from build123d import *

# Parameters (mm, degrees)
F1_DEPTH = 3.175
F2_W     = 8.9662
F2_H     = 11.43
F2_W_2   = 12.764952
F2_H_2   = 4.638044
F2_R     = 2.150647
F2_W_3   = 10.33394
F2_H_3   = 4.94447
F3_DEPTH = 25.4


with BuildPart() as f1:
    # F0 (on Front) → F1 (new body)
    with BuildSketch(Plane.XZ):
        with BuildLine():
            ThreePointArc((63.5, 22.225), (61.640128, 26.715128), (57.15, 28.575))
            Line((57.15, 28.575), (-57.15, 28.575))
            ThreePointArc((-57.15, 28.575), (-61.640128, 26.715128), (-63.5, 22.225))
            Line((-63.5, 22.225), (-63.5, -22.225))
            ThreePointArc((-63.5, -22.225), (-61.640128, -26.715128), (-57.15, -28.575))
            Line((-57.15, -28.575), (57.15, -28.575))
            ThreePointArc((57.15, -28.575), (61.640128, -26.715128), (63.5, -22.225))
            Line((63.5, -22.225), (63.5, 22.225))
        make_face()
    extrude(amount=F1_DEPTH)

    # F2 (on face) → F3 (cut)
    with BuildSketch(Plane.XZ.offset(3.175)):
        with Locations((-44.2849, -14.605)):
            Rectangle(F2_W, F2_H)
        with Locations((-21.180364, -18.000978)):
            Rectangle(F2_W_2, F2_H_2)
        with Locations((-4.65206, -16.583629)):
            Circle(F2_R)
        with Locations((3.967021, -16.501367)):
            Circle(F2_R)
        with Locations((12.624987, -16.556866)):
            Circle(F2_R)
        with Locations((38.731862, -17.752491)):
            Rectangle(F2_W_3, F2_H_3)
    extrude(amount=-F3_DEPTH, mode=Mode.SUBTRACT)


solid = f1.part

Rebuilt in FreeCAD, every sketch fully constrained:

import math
import FreeCAD as App
import Part
import Sketcher

V = App.Vector
Q = App.Units.Quantity


def add_polygon(sketch, points):
    """Adds a closed chain of lines whose ends are joined by coincident constraints."""
    first, n = sketch.GeometryCount, len(points)
    for a, b in zip(points, points[1:] + points[:1]):
        sketch.addGeometry(Part.LineSegment(App.Vector(*a, 0), App.Vector(*b, 0)), False)
    for i in range(n):
        sketch.addConstraint(Sketcher.Constraint("Coincident", first + i, 2, first + (i + 1) % n, 1))

doc = App.newDocument("Part")
body = doc.addObject("PartDesign::Body", "Body")

sketch1 = doc.addObject("Sketcher::SketchObject", "Sketch")
body.addObject(sketch1)
sketch1.AttachmentSupport = (doc.XZ_Plane, [""])
sketch1.MapMode = "FlatFace"
sketch1.addGeometry([
    Part.ArcOfCircle(Part.Circle(V(57, 22, 0), V(0, 0, 1), 6), math.radians(0), math.radians(90)),
    Part.LineSegment(V(57, 29, 0), V(-57, 29, 0)),
    Part.ArcOfCircle(Part.Circle(V(-57, 22, 0), V(0, 0, 1), 6), math.radians(90), math.radians(180)),
    Part.LineSegment(V(-64, 22, 0), V(-64, -22, 0)),
    Part.ArcOfCircle(Part.Circle(V(-57, -22, 0), V(0, 0, 1), 6), math.radians(-180), math.radians(-90)),
    Part.LineSegment(V(-57, -29, 0), V(57, -29, 0)),
    Part.ArcOfCircle(Part.Circle(V(57, -22, 0), V(0, 0, 1), 6), math.radians(-90), math.radians(0)),
    Part.LineSegment(V(64, -22, 0), V(64, 22, 0)),
], False)
sketch1.addConstraint([
    Sketcher.Constraint("Tangent", 0, 2, 1, 1),
    Sketcher.Constraint("Tangent", 1, 2, 2, 1),
    Sketcher.Constraint("Tangent", 2, 2, 3, 1),
    Sketcher.Constraint("Tangent", 3, 2, 4, 1),
    Sketcher.Constraint("Tangent", 4, 2, 5, 1),
    Sketcher.Constraint("Tangent", 5, 2, 6, 1),
    Sketcher.Constraint("Tangent", 6, 2, 7, 1),
    Sketcher.Constraint("Tangent", 7, 2, 0, 1),
    Sketcher.Constraint("Horizontal", 1),
    Sketcher.Constraint("Vertical", 3),
    Sketcher.Constraint("Horizontal", 5),
    Sketcher.Constraint("Vertical", 7),
    Sketcher.Constraint("Equal", 0, 2),
    Sketcher.Constraint("Equal", 2, 4),
    Sketcher.Constraint("Equal", 4, 6),
    Sketcher.Constraint("Symmetric", 0, 3, 4, 3, -1, 1),
    Sketcher.Constraint("Radius", 0, Q("0.25 in")),
    Sketcher.Constraint("DistanceX", 1, 2, 1, 1, Q("4.5 in")),
    Sketcher.Constraint("DistanceY", 6, 3, 0, 2, Q("2 in")),
])
pad1 = doc.addObject("PartDesign::Pad", "Pad")
body.addObject(pad1)
pad1.Profile = sketch1
pad1.Length = Q("0.125 in")

sketch2 = doc.addObject("Sketcher::SketchObject", "Sketch001")
body.addObject(sketch2)
sketch2.AttachmentSupport = (doc.XZ_Plane, [""])
sketch2.MapMode = "FlatFace"
sketch2.AttachmentOffset = App.Placement(V(0, 0, 0.125 * 25.4), App.Rotation())
add_polygon(sketch2, [(-48.8, -8.9), (-48.8, -20.3), (-39.8, -20.3), (-39.8, -8.9)])
add_polygon(sketch2, [(-27.6, -15.7), (-27.6, -20.3), (-14.8, -20.3), (-14.8, -15.7)])
sketch2.addGeometry(Part.Circle(V(-4.7, -16.6, 0), V(0, 0, 1), 2.2), False)
sketch2.addGeometry(Part.Circle(V(4, -16.5, 0), V(0, 0, 1), 2.2), False)
sketch2.addGeometry(Part.Circle(V(12.6, -16.6, 0), V(0, 0, 1), 2.2), False)
add_polygon(sketch2, [(33.6, -15.3), (33.6, -20.2), (43.9, -20.2), (43.9, -15.3)])
sketch2.addConstraint([
    Sketcher.Constraint("Vertical", 0),
    Sketcher.Constraint("Horizontal", 1),
    Sketcher.Constraint("Vertical", 2),
    Sketcher.Constraint("Horizontal", 3),
    Sketcher.Constraint("Vertical", 4),
    Sketcher.Constraint("Horizontal", 5),
    Sketcher.Constraint("Vertical", 6),
    Sketcher.Constraint("Horizontal", 7),
    Sketcher.Constraint("Vertical", 11),
    Sketcher.Constraint("Horizontal", 12),
    Sketcher.Constraint("Vertical", 13),
    Sketcher.Constraint("Horizontal", 14),
    Sketcher.Constraint("Equal", 8, 9),
    Sketcher.Constraint("Equal", 9, 10),
    Sketcher.Constraint("Horizontal", 1, 2, 4, 2),
    Sketcher.Constraint("DistanceY", 0, 2, 0, 1, Q("0.45 in")),
    Sketcher.Constraint("DistanceY", 0, 2, -1, 1, Q("0.8 in")),
    Sketcher.Constraint("DistanceX", 1, 1, 1, 2, Q("0.353 in")),
    Sketcher.Constraint("DistanceX", 0, 2, -1, 1, Q("1.92 in")),
    Sketcher.Constraint("DistanceY", 4, 2, 4, 1, Q("0.1826002 in")),
    Sketcher.Constraint("Diameter", 8, Q("4.301294 mm")),
    Sketcher.Constraint("DistanceX", 12, 1, 12, 2, Q("10.33394 mm")),
    Sketcher.Constraint("DistanceY", 11, 2, 11, 1, Q("4.94447 mm")),
    Sketcher.Constraint("DistanceY", 10, 3, 9, 3, Q("0.055499 mm")),
    Sketcher.Constraint("DistanceX", 5, 1, 5, 2, Q("12.764952 mm")),
    Sketcher.Constraint("DistanceX", 8, 3, -1, 1, Q("4.65206 mm")),
    Sketcher.Constraint("DistanceY", 8, 3, -1, 1, Q("16.583629 mm")),
    Sketcher.Constraint("DistanceX", -1, 1, 9, 3, Q("3.967021 mm")),
    Sketcher.Constraint("DistanceX", 4, 2, -1, 1, Q("27.56284 mm")),
    Sketcher.Constraint("DistanceY", 9, 3, 6, 2, Q("0.819411 mm")),
    Sketcher.Constraint("DistanceY", 11, 2, 10, 3, Q("3.66786 mm")),
    Sketcher.Constraint("DistanceX", 9, 3, 11, 2, Q("29.597871 mm")),
    Sketcher.Constraint("DistanceX", -1, 1, 10, 3, Q("12.624987 mm")),
])
pocket1 = doc.addObject("PartDesign::Pocket", "Pocket")
body.addObject(pocket1)
pocket1.Profile = sketch2
pocket1.Length = Q("1 in")

doc.recompute()
